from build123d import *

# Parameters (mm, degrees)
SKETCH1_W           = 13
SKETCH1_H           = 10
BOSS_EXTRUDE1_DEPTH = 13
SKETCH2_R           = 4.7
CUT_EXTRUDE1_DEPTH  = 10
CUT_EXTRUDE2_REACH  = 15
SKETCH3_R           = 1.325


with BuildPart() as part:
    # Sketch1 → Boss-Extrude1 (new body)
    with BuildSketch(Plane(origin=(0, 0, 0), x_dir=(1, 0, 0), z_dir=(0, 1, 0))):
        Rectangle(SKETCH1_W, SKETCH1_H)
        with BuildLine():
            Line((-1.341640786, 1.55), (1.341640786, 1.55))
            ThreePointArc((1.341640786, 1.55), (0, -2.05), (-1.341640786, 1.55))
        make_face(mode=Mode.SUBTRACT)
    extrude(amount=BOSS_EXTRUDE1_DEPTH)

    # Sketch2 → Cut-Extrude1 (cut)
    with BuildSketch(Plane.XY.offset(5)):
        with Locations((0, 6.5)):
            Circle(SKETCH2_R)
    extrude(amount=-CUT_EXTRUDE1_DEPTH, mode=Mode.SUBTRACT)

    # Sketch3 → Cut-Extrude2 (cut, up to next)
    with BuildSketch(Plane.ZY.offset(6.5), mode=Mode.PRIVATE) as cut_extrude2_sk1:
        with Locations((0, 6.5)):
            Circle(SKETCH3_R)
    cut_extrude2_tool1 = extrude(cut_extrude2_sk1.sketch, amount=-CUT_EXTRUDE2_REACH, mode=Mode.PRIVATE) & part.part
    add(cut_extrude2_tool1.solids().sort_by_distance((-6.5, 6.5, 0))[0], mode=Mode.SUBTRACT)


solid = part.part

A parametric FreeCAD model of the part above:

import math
import FreeCAD as App
import Part
import Sketcher

V = App.Vector
Q = App.Units.Quantity


def add_polygon(sketch, points):
    """Adds a closed chain of lines whose ends are joined by coincident constraints."""
    first, n = sketch.GeometryCount, len(points)
    for a, b in zip(points, points[1:] + points[:1]):
        sketch.addGeometry(Part.LineSegment(App.Vector(*a, 0), App.Vector(*b, 0)), False)
    for i in range(n):
        sketch.addConstraint(Sketcher.Constraint("Coincident", first + i, 2, first + (i + 1) % n, 1))

doc = App.newDocument("Part")
body = doc.addObject("PartDesign::Body", "Body")

sketch1 = body.newObject("Sketcher::SketchObject", "Sketch")
sketch1.AttachmentSupport = (doc.getObject("XZ_Plane"), [""])
sketch1.MapMode = "FlatFace"
add_polygon(sketch1, [(-6.5, -5), (-6.5, 5), (6.5, 5), (6.5, -5)])
sketch1.addGeometry(Part.ArcOfCircle(Part.Circle(V(0, 0, 0), V(0, 0, 1), 2), math.radians(-49), math.radians(229)), False)
sketch1.addGeometry(Part.LineSegment(V(-1.3, -1.6, 0), V(1.3, -1.6, 0)), False)
sketch1.addConstraint(Sketcher.Constraint("Coincident", 4, 1, 5, 2))
sketch1.addConstraint(Sketcher.Constraint("Coincident", 5, 1, 4, 2))
sketch1.addConstraint(Sketcher.Constraint("Vertical", 0))
sketch1.addConstraint(Sketcher.Constraint("Horizontal", 1))
sketch1.addConstraint(Sketcher.Constraint("Vertical", 2))
sketch1.addConstraint(Sketcher.Constraint("Horizontal", 3))
sketch1.addConstraint(Sketcher.Constraint("Horizontal", 5))
sketch1.addConstraint(Sketcher.Constraint("Coincident", 4, 3, -1, 1))
sketch1.addConstraint(Sketcher.Constraint("Symmetric", 0, 2, 2, 2, -1, 1))
sketch1.addConstraint(Sketcher.Constraint("DistanceX", 1, 1, 1, 2, Q("13 mm")))
sketch1.addConstraint(Sketcher.Constraint("DistanceY", 0, 1, 0, 2, Q("10 mm")))
sketch1.addConstraint(Sketcher.Constraint("Radius", 4, Q("2.05 mm")))
sketch1.addConstraint(Sketcher.Constraint("DistanceY", 4, 1, -1, 1, Q("1.55 mm")))
pad1 = body.newObject("PartDesign::Pad", "Pad")
pad1.Profile = sketch1
pad1.Length = 13
pad1.Reversed = True

sketch2 = body.newObject("Sketcher::SketchObject", "Sketch001")
sketch2.AttachmentSupport = (doc.getObject("XY_Plane"), [""])
sketch2.MapMode = "FlatFace"
sketch2.AttachmentOffset = App.Placement(V(0, 0, 5), App.Rotation())
sketch2.addGeometry(Part.Circle(V(0, 6.5, 0), V(0, 0, 1), 4.7), False)
sketch2.addConstraint(Sketcher.Constraint("PointOnObject", 0, 3, -2))
sketch2.addConstraint(Sketcher.Constraint("Diameter", 0, Q("9.4 mm")))
sketch2.addConstraint(Sketcher.Constraint("DistanceY", -1, 1, 0, 3, Q("6.5 mm")))
pocket1 = body.newObject("PartDesign::Pocket", "Pocket")
pocket1.Profile = sketch2
pocket1.Length = 10

sketch3 = body.newObject("Sketcher::SketchObject", "Sketch002")
sketch3.AttachmentSupport = (doc.getObject("YZ_Plane"), [""])
sketch3.MapMode = "FlatFace"
sketch3.AttachmentOffset = App.Placement(V(0, 0, -6.5), App.Rotation())
sketch3.addGeometry(Part.Circle(V(6.5, 0, 0), V(0, 0, 1), 1.3), False)
sketch3.addConstraint(Sketcher.Constraint("PointOnObject", 0, 3, -1))
sketch3.addConstraint(Sketcher.Constraint("Diameter", 0, Q("2.65 mm")))
sketch3.addConstraint(Sketcher.Constraint("DistanceX", -1, 1, 0, 3, Q("6.5 mm")))
pocket2 = body.newObject("PartDesign::Pocket", "Pocket001")
pocket2.Profile = sketch3
pocket2.Type = "UpToFirst"
pocket2.Reversed = True

doc.recompute()
